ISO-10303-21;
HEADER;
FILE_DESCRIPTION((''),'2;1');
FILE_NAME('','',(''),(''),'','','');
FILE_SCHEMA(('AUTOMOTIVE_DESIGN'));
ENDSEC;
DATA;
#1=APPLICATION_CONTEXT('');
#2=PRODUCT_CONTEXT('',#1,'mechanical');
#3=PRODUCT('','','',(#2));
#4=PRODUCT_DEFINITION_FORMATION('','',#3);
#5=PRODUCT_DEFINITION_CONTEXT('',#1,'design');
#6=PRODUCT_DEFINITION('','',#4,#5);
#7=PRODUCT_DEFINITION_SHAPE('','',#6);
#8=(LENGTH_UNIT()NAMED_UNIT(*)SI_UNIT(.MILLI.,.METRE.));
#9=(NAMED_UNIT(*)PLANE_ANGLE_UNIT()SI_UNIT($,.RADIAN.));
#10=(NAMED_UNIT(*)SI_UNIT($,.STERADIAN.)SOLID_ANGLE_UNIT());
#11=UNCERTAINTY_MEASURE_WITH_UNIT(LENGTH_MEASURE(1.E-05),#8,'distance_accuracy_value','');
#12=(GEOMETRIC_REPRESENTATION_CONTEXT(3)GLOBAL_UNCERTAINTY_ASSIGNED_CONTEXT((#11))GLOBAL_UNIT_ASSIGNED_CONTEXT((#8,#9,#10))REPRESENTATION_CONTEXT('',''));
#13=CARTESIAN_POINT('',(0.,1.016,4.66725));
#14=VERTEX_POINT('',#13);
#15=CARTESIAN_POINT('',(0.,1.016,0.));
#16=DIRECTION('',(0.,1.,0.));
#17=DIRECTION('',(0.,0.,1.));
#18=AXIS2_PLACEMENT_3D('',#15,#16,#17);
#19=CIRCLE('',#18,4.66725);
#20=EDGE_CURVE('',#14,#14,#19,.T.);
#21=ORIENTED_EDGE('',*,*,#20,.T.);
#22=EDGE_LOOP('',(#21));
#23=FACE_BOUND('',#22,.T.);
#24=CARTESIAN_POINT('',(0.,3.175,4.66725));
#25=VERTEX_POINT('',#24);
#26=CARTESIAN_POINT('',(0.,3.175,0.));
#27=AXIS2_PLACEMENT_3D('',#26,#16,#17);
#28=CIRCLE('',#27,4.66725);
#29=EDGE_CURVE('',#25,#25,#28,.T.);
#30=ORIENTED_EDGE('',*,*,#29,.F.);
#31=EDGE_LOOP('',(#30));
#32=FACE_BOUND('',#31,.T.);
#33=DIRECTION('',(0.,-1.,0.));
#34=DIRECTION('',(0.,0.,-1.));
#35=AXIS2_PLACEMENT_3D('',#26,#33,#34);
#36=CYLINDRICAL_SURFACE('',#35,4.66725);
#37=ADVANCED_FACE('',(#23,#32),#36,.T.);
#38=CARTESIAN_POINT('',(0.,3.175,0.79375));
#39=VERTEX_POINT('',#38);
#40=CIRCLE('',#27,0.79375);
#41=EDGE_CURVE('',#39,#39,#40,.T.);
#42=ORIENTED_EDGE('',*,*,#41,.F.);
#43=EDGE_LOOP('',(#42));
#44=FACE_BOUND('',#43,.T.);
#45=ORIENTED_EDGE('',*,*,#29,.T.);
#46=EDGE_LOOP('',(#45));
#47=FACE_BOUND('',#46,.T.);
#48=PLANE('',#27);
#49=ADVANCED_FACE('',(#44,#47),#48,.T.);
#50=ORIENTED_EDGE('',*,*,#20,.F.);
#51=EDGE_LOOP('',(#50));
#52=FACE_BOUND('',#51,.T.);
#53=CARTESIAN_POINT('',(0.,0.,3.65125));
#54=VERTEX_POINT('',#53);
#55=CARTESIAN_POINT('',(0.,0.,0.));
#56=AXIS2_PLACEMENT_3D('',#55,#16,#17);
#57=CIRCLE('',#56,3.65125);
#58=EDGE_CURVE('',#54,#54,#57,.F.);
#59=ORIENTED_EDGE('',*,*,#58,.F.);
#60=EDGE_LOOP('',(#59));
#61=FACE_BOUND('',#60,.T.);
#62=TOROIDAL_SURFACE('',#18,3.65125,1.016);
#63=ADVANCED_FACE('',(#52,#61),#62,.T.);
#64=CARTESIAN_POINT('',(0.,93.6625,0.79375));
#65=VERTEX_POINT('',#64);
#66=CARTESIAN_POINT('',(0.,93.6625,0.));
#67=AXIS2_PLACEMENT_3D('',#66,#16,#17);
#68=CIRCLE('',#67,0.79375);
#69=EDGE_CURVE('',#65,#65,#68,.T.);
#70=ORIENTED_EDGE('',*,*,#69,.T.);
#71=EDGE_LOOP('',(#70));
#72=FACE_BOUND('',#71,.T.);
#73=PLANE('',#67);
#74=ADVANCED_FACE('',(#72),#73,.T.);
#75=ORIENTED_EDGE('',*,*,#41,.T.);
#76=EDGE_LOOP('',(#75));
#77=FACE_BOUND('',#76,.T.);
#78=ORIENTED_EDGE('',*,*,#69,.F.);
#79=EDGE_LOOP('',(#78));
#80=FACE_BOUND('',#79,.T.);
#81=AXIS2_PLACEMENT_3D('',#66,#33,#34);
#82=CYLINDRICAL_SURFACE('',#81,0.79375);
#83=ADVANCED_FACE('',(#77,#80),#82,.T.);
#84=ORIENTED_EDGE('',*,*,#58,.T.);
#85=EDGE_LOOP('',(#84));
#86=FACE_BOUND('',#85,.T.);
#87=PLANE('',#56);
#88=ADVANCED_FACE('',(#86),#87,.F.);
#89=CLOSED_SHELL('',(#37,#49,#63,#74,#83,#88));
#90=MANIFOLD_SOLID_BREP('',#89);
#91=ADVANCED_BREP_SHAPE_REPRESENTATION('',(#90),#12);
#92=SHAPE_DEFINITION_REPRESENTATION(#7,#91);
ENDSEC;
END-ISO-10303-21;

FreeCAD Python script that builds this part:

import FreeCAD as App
import Part
import Sketcher
Q = App.Units.Quantity


def edges_at(feature, points):
    """Names of the edges that pass closest to the given points."""
    edges = feature.Shape.Edges
    near = lambda p: min(range(len(edges)), key=lambda i: edges[i].distToShape(Part.Vertex(*p))[0])
    return sorted({f"Edge{near(p) + 1}" for p in points})

doc = App.newDocument("Part")
params = doc.addObject("Spreadsheet::Sheet", "Params")
for row, (alias, value) in enumerate([
    ("pad1_length", "0.125 in"),
    ("sketch2_diameter", "0.0625 in"),
    ("pad2_length", "3.5625 in"),
    ("fillet_radius", "0.04 in"),
], start=1):
    params.set(f"A{row}", alias)
    params.set(f"B{row}", "=" + value)
    params.setAlias(f"B{row}", alias)

body = doc.addObject("PartDesign::Body", "Body")

# Sketch on XZ plane
sketch1 = body.newObject("Sketcher::SketchObject", "Sketch")
sketch1.AttachmentSupport = (doc.getObject("XZ_Plane"), [""])
sketch1.MapMode = "FlatFace"
sketch1.addGeometry(Part.Circle(App.Vector(0, 0, 0), App.Vector(0, 0, 1), 4.7), False)
sketch1.addConstraint(Sketcher.Constraint("Coincident", 0, 3, -1, 1))
sketch1.addConstraint(Sketcher.Constraint("Diameter", 0, Q("0.3675 in")))
pad1 = body.newObject("PartDesign::Pad", "Pad")
pad1.Profile = sketch1
pad1.setExpression("Length", "Params.pad1_length")
pad1.Reversed = True

# Sketch on XZ plane
sketch2 = body.newObject("Sketcher::SketchObject", "Sketch001")
sketch2.AttachmentSupport = (doc.getObject("XZ_Plane"), [""])
sketch2.MapMode = "FlatFace"
sketch2.AttachmentOffset = App.Placement(App.Vector(0, 0, -0.125 * 25.4), App.Rotation())
sketch2.addGeometry(Part.Circle(App.Vector(0, 0, 0), App.Vector(0, 0, 1), 0.8), False)
sketch2.addConstraint(Sketcher.Constraint("Coincident", 0, 3, -1, 1))
sketch2.addConstraint(Sketcher.Constraint("Diameter", 0, Q("0.0625 in")))
sketch2.setExpression("Constraints[1]", "Params.sketch2_diameter")
pad2 = body.newObject("PartDesign::Pad", "Pad001")
pad2.Profile = sketch2
pad2.setExpression("Length", "Params.pad2_length")
pad2.Reversed = True
doc.recompute()

fillet = body.newObject("PartDesign::Fillet", "Fillet")
fillet.Base = (pad2, edges_at(pad2, [(-4.667, 0, 0)]))
fillet.setExpression("Radius", "Params.fillet_radius")

doc.recompute()
